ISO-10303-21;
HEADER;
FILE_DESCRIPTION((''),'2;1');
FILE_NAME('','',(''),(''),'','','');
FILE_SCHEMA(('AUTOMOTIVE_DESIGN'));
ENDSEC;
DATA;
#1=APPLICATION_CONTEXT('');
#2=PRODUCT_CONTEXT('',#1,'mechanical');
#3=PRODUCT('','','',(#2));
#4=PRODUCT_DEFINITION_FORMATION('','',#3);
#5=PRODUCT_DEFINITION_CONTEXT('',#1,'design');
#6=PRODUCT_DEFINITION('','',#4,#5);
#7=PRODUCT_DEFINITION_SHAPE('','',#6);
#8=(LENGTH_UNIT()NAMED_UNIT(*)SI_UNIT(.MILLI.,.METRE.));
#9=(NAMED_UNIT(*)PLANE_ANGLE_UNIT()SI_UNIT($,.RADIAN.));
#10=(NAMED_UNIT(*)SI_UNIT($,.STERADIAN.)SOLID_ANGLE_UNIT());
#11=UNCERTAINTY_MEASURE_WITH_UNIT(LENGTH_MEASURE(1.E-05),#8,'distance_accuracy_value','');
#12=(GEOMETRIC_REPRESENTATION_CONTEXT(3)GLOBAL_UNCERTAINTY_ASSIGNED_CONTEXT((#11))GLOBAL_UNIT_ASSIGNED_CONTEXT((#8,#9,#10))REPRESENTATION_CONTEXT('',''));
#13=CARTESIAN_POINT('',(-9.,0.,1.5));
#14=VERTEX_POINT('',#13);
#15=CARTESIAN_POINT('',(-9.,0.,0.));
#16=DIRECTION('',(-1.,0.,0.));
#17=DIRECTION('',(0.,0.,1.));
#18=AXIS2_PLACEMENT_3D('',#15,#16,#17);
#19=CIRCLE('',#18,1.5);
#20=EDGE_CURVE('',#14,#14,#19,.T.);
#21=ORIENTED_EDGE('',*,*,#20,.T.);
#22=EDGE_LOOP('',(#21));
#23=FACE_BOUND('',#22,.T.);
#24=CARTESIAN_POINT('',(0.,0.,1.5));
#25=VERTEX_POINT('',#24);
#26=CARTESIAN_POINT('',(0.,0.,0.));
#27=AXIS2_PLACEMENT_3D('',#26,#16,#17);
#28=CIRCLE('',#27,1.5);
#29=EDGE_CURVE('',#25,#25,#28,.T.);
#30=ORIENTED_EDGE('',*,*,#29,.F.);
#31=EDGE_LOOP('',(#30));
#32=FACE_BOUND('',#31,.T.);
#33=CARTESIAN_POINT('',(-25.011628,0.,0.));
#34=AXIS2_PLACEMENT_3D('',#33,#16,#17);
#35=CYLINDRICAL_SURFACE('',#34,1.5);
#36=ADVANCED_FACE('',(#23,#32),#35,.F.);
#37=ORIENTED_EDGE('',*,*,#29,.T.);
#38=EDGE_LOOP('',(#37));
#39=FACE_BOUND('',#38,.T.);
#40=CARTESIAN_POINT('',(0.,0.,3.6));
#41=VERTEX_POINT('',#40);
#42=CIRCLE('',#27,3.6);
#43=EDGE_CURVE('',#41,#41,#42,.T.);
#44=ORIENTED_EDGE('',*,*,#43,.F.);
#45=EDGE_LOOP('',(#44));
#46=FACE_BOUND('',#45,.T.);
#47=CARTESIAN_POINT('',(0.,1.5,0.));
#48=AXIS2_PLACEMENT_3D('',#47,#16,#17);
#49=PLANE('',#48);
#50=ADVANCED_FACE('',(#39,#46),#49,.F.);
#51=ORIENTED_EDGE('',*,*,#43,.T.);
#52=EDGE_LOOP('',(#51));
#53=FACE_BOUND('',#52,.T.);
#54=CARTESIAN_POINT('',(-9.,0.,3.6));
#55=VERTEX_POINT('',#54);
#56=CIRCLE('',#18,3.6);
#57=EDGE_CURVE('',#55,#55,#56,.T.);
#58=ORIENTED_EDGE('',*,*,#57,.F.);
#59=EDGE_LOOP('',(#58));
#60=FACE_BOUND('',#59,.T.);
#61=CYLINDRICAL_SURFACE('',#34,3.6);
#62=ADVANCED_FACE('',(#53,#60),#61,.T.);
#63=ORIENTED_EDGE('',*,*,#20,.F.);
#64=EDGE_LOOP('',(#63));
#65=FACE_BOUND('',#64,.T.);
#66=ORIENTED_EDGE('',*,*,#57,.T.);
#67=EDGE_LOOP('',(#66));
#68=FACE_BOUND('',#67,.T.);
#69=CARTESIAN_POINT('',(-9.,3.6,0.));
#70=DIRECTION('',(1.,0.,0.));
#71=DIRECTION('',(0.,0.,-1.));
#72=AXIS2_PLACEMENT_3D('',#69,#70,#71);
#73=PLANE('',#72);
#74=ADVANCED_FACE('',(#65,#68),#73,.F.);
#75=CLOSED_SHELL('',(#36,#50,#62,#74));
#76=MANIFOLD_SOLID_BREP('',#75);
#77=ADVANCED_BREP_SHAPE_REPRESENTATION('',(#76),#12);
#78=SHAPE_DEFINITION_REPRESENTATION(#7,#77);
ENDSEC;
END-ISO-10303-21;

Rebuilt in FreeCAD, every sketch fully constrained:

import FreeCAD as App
import Part
import Sketcher

V = App.Vector
Q = App.Units.Quantity

doc = App.newDocument("Part")
body = doc.addObject("PartDesign::Body", "Body")

sketch1 = body.newObject("Sketcher::SketchObject", "Sketch")
sketch1.AttachmentSupport = (doc.getObject("XY_Plane"), [""])
sketch1.MapMode = "FlatFace"
sketch1.addGeometry(Part.LineSegment(V(-9, 3.6, 0), V(-9, 1.5, 0)), False)
sketch1.addGeometry(Part.LineSegment(V(-9, 1.5, 0), V(0, 1.5, 0)), False)
sketch1.addGeometry(Part.LineSegment(V(0, 1.5, 0), V(0, 3.6, 0)), False)
sketch1.addGeometry(Part.LineSegment(V(0, 3.6, 0), V(-9, 3.6, 0)), False)
sketch1.addConstraint(Sketcher.Constraint("Coincident", 0, 2, 1, 1))
sketch1.addConstraint(Sketcher.Constraint("Coincident", 1, 2, 2, 1))
sketch1.addConstraint(Sketcher.Constraint("Coincident", 2, 2, 3, 1))
sketch1.addConstraint(Sketcher.Constraint("Coincident", 3, 2, 0, 1))
sketch1.addConstraint(Sketcher.Constraint("Vertical", 0))
sketch1.addConstraint(Sketcher.Constraint("Horizontal", 1))
sketch1.addConstraint(Sketcher.Constraint("Vertical", 2))
sketch1.addConstraint(Sketcher.Constraint("Horizontal", 3))
sketch1.addConstraint(Sketcher.Constraint("PointOnObject", 1, 2, -2))
sketch1.addConstraint(Sketcher.Constraint("DistanceX", 1, 1, 1, 2, Q("9 mm")))
sketch1.addConstraint(Sketcher.Constraint("DistanceY", 0, 2, 0, 1, Q("2.1 mm")))
sketch1.addConstraint(Sketcher.Constraint("DistanceY", -1, 1, 0, 2, Q("1.5 mm")))
revolution = body.newObject("PartDesign::Revolution", "Revolution")
revolution.Profile = sketch1
revolution.ReferenceAxis = (sketch1, ["H_Axis"])
revolution.Angle = 360

doc.recompute()
